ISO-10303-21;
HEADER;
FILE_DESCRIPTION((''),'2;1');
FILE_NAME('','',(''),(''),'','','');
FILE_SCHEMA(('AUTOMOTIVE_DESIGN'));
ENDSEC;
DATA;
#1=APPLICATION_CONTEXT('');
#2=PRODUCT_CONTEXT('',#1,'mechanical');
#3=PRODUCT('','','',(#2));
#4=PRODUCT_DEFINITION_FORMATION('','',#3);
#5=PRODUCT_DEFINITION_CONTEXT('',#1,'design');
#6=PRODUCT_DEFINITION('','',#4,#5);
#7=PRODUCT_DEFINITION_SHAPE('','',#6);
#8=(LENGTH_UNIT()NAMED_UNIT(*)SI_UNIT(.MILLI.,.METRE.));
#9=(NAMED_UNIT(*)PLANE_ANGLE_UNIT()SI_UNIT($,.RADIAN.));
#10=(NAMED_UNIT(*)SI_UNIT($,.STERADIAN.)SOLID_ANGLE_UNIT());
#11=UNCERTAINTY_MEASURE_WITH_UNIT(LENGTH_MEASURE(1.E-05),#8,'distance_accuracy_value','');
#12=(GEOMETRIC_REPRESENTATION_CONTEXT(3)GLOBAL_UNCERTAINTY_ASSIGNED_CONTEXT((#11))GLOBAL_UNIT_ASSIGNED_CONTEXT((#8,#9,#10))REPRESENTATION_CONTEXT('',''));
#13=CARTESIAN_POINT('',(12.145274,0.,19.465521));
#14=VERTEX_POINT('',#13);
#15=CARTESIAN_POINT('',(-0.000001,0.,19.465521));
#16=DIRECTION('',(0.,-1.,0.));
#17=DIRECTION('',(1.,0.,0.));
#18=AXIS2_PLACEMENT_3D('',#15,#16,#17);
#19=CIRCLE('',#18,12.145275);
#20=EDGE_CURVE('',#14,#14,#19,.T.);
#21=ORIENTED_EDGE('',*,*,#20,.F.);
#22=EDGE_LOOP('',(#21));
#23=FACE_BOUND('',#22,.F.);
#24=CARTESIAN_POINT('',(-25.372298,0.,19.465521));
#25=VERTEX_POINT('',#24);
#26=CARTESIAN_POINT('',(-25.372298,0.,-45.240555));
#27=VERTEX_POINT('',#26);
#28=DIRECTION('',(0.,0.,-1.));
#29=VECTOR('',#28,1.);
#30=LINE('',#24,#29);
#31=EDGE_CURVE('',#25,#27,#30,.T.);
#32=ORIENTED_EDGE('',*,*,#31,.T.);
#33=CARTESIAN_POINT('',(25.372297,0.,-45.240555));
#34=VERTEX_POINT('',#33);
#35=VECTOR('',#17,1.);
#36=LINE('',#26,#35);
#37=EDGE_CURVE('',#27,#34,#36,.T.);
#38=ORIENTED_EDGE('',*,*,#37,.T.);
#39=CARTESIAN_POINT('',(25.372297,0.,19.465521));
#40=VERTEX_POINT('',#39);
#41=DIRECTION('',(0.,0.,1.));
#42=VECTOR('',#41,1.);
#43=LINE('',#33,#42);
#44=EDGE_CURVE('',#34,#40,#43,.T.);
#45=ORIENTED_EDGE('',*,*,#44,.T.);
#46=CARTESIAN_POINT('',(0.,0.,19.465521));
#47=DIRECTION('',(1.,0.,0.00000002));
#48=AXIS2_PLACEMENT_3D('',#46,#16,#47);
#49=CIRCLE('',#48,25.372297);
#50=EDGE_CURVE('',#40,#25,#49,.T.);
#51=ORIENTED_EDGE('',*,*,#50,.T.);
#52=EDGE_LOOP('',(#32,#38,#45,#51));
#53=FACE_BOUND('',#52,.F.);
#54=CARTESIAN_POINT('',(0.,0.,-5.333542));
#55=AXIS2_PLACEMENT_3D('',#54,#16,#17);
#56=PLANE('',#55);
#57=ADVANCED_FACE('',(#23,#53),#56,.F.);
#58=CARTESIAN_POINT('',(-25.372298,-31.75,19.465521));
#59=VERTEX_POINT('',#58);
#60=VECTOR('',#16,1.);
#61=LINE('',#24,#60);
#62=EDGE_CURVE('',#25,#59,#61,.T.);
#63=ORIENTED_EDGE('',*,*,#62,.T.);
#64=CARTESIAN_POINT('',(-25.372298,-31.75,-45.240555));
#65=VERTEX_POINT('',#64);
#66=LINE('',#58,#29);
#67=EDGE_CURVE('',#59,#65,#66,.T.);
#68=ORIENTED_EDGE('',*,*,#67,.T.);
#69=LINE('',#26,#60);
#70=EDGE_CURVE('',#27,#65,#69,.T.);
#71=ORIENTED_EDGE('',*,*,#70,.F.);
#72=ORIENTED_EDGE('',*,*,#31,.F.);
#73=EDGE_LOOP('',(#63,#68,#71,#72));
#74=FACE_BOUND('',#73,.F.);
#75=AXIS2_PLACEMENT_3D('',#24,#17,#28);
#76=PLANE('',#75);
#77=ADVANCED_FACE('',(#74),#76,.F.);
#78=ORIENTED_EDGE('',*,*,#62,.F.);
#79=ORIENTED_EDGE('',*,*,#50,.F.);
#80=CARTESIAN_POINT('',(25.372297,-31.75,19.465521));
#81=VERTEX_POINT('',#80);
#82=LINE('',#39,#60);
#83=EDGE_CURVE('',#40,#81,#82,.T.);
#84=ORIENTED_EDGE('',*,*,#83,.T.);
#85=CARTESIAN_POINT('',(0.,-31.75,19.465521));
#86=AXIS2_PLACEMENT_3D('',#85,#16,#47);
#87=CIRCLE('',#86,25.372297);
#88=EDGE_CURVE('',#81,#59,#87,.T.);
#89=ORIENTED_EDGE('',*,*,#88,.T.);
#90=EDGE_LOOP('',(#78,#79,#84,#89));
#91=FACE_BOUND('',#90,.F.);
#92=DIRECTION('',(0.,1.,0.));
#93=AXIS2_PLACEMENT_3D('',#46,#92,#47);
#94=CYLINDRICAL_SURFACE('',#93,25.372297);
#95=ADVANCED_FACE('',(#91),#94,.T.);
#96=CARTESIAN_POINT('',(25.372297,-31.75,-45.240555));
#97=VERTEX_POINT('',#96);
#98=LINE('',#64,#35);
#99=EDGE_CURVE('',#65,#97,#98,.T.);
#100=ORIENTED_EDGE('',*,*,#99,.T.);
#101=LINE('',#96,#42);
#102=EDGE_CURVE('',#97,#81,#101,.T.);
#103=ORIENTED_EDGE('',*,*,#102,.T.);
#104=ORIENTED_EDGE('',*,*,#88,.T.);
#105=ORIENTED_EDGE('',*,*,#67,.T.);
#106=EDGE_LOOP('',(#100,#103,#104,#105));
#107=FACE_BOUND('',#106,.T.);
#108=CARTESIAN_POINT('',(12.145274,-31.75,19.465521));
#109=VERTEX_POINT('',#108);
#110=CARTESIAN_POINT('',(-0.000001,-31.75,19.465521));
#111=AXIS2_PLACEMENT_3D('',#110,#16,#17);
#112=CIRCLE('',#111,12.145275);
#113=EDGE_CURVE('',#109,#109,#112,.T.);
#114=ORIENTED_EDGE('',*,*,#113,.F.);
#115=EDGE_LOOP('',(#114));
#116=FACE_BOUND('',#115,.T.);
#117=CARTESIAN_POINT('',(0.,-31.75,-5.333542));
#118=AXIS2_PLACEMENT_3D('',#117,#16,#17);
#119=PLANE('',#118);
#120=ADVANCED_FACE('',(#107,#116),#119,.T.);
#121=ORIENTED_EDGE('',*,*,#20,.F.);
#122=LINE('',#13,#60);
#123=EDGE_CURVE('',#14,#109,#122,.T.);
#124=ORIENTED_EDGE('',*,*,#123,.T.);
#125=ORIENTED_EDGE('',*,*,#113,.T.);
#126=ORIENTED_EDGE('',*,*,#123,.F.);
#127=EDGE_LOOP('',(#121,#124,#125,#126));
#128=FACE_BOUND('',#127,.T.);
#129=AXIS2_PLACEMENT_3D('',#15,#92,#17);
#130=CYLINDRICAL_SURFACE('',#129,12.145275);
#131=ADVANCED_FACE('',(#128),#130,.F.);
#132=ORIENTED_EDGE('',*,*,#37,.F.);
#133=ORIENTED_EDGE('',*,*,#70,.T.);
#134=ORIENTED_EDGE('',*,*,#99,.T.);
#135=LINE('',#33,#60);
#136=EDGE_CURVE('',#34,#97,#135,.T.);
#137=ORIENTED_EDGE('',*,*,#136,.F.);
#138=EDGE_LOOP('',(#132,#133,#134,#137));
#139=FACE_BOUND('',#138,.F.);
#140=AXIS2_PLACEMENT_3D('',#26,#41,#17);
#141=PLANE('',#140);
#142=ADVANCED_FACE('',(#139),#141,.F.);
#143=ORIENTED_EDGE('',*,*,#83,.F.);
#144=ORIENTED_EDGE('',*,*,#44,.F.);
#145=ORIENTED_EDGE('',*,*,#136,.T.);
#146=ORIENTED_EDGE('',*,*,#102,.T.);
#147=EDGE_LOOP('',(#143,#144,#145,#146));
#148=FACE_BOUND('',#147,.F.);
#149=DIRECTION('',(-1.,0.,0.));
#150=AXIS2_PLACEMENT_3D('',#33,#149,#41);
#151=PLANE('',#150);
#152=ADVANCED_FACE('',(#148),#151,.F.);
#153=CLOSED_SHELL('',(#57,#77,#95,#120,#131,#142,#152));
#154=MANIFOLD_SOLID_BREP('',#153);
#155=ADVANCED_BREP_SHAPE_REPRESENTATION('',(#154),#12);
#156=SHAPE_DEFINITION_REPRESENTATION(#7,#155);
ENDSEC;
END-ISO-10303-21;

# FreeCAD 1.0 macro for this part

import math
import FreeCAD as App
import Part
import Sketcher
from FreeCAD import Vector
Q = App.Units.Quantity

doc = App.newDocument("Part")
body = doc.addObject("PartDesign::Body", "Body")

# Sketch on XZ plane
sketch1 = body.newObject("Sketcher::SketchObject", "Sketch")
sketch1.AttachmentSupport = (doc.getObject("XZ_Plane"), [""])
sketch1.MapMode = "FlatFace"
sketch1.addGeometry([
    Part.ArcOfCircle(Part.Circle(Vector(0, 19, 0), Vector(0, 0, 1), 25), math.radians(0), math.radians(180)),  # 0
    Part.LineSegment(Vector(-25, 19, 0), Vector(-25, -45, 0)),  # 1
    Part.LineSegment(Vector(-25, -45, 0), Vector(25, -45, 0)),  # 2
    Part.LineSegment(Vector(25, -45, 0), Vector(25, 19, 0)),  # 3
    Part.Circle(Vector(0, 19, 0), Vector(0, 0, 1), 12),  # 4
], False)
sketch1.addConstraint([
    Sketcher.Constraint("Tangent", 0, 2, 1, 1),
    Sketcher.Constraint("Coincident", 1, 2, 2, 1),
    Sketcher.Constraint("Coincident", 2, 2, 3, 1),
    Sketcher.Constraint("Tangent", 3, 2, 0, 1),
    Sketcher.Constraint("Vertical", 1),
    Sketcher.Constraint("Horizontal", 2),
    Sketcher.Constraint("Vertical", 3),
    Sketcher.Constraint("Coincident", 4, 3, 0, 3),
    Sketcher.Constraint("PointOnObject", 0, 3, -2),
    Sketcher.Constraint("Diameter", 4, Q("24.29055 mm")),
    Sketcher.Constraint("Radius", 0, Q("25.372297 mm")),
    Sketcher.Constraint("DistanceY", 1, 2, 1, 1, Q("64.706076 mm")),
    Sketcher.Constraint("DistanceY", -1, 1, 0, 3, Q("19.465521 mm")),
])
pad1 = body.newObject("PartDesign::Pad", "Pad")
pad1.Profile = sketch1
pad1.Length = Q("1.25 in")

doc.recompute()
